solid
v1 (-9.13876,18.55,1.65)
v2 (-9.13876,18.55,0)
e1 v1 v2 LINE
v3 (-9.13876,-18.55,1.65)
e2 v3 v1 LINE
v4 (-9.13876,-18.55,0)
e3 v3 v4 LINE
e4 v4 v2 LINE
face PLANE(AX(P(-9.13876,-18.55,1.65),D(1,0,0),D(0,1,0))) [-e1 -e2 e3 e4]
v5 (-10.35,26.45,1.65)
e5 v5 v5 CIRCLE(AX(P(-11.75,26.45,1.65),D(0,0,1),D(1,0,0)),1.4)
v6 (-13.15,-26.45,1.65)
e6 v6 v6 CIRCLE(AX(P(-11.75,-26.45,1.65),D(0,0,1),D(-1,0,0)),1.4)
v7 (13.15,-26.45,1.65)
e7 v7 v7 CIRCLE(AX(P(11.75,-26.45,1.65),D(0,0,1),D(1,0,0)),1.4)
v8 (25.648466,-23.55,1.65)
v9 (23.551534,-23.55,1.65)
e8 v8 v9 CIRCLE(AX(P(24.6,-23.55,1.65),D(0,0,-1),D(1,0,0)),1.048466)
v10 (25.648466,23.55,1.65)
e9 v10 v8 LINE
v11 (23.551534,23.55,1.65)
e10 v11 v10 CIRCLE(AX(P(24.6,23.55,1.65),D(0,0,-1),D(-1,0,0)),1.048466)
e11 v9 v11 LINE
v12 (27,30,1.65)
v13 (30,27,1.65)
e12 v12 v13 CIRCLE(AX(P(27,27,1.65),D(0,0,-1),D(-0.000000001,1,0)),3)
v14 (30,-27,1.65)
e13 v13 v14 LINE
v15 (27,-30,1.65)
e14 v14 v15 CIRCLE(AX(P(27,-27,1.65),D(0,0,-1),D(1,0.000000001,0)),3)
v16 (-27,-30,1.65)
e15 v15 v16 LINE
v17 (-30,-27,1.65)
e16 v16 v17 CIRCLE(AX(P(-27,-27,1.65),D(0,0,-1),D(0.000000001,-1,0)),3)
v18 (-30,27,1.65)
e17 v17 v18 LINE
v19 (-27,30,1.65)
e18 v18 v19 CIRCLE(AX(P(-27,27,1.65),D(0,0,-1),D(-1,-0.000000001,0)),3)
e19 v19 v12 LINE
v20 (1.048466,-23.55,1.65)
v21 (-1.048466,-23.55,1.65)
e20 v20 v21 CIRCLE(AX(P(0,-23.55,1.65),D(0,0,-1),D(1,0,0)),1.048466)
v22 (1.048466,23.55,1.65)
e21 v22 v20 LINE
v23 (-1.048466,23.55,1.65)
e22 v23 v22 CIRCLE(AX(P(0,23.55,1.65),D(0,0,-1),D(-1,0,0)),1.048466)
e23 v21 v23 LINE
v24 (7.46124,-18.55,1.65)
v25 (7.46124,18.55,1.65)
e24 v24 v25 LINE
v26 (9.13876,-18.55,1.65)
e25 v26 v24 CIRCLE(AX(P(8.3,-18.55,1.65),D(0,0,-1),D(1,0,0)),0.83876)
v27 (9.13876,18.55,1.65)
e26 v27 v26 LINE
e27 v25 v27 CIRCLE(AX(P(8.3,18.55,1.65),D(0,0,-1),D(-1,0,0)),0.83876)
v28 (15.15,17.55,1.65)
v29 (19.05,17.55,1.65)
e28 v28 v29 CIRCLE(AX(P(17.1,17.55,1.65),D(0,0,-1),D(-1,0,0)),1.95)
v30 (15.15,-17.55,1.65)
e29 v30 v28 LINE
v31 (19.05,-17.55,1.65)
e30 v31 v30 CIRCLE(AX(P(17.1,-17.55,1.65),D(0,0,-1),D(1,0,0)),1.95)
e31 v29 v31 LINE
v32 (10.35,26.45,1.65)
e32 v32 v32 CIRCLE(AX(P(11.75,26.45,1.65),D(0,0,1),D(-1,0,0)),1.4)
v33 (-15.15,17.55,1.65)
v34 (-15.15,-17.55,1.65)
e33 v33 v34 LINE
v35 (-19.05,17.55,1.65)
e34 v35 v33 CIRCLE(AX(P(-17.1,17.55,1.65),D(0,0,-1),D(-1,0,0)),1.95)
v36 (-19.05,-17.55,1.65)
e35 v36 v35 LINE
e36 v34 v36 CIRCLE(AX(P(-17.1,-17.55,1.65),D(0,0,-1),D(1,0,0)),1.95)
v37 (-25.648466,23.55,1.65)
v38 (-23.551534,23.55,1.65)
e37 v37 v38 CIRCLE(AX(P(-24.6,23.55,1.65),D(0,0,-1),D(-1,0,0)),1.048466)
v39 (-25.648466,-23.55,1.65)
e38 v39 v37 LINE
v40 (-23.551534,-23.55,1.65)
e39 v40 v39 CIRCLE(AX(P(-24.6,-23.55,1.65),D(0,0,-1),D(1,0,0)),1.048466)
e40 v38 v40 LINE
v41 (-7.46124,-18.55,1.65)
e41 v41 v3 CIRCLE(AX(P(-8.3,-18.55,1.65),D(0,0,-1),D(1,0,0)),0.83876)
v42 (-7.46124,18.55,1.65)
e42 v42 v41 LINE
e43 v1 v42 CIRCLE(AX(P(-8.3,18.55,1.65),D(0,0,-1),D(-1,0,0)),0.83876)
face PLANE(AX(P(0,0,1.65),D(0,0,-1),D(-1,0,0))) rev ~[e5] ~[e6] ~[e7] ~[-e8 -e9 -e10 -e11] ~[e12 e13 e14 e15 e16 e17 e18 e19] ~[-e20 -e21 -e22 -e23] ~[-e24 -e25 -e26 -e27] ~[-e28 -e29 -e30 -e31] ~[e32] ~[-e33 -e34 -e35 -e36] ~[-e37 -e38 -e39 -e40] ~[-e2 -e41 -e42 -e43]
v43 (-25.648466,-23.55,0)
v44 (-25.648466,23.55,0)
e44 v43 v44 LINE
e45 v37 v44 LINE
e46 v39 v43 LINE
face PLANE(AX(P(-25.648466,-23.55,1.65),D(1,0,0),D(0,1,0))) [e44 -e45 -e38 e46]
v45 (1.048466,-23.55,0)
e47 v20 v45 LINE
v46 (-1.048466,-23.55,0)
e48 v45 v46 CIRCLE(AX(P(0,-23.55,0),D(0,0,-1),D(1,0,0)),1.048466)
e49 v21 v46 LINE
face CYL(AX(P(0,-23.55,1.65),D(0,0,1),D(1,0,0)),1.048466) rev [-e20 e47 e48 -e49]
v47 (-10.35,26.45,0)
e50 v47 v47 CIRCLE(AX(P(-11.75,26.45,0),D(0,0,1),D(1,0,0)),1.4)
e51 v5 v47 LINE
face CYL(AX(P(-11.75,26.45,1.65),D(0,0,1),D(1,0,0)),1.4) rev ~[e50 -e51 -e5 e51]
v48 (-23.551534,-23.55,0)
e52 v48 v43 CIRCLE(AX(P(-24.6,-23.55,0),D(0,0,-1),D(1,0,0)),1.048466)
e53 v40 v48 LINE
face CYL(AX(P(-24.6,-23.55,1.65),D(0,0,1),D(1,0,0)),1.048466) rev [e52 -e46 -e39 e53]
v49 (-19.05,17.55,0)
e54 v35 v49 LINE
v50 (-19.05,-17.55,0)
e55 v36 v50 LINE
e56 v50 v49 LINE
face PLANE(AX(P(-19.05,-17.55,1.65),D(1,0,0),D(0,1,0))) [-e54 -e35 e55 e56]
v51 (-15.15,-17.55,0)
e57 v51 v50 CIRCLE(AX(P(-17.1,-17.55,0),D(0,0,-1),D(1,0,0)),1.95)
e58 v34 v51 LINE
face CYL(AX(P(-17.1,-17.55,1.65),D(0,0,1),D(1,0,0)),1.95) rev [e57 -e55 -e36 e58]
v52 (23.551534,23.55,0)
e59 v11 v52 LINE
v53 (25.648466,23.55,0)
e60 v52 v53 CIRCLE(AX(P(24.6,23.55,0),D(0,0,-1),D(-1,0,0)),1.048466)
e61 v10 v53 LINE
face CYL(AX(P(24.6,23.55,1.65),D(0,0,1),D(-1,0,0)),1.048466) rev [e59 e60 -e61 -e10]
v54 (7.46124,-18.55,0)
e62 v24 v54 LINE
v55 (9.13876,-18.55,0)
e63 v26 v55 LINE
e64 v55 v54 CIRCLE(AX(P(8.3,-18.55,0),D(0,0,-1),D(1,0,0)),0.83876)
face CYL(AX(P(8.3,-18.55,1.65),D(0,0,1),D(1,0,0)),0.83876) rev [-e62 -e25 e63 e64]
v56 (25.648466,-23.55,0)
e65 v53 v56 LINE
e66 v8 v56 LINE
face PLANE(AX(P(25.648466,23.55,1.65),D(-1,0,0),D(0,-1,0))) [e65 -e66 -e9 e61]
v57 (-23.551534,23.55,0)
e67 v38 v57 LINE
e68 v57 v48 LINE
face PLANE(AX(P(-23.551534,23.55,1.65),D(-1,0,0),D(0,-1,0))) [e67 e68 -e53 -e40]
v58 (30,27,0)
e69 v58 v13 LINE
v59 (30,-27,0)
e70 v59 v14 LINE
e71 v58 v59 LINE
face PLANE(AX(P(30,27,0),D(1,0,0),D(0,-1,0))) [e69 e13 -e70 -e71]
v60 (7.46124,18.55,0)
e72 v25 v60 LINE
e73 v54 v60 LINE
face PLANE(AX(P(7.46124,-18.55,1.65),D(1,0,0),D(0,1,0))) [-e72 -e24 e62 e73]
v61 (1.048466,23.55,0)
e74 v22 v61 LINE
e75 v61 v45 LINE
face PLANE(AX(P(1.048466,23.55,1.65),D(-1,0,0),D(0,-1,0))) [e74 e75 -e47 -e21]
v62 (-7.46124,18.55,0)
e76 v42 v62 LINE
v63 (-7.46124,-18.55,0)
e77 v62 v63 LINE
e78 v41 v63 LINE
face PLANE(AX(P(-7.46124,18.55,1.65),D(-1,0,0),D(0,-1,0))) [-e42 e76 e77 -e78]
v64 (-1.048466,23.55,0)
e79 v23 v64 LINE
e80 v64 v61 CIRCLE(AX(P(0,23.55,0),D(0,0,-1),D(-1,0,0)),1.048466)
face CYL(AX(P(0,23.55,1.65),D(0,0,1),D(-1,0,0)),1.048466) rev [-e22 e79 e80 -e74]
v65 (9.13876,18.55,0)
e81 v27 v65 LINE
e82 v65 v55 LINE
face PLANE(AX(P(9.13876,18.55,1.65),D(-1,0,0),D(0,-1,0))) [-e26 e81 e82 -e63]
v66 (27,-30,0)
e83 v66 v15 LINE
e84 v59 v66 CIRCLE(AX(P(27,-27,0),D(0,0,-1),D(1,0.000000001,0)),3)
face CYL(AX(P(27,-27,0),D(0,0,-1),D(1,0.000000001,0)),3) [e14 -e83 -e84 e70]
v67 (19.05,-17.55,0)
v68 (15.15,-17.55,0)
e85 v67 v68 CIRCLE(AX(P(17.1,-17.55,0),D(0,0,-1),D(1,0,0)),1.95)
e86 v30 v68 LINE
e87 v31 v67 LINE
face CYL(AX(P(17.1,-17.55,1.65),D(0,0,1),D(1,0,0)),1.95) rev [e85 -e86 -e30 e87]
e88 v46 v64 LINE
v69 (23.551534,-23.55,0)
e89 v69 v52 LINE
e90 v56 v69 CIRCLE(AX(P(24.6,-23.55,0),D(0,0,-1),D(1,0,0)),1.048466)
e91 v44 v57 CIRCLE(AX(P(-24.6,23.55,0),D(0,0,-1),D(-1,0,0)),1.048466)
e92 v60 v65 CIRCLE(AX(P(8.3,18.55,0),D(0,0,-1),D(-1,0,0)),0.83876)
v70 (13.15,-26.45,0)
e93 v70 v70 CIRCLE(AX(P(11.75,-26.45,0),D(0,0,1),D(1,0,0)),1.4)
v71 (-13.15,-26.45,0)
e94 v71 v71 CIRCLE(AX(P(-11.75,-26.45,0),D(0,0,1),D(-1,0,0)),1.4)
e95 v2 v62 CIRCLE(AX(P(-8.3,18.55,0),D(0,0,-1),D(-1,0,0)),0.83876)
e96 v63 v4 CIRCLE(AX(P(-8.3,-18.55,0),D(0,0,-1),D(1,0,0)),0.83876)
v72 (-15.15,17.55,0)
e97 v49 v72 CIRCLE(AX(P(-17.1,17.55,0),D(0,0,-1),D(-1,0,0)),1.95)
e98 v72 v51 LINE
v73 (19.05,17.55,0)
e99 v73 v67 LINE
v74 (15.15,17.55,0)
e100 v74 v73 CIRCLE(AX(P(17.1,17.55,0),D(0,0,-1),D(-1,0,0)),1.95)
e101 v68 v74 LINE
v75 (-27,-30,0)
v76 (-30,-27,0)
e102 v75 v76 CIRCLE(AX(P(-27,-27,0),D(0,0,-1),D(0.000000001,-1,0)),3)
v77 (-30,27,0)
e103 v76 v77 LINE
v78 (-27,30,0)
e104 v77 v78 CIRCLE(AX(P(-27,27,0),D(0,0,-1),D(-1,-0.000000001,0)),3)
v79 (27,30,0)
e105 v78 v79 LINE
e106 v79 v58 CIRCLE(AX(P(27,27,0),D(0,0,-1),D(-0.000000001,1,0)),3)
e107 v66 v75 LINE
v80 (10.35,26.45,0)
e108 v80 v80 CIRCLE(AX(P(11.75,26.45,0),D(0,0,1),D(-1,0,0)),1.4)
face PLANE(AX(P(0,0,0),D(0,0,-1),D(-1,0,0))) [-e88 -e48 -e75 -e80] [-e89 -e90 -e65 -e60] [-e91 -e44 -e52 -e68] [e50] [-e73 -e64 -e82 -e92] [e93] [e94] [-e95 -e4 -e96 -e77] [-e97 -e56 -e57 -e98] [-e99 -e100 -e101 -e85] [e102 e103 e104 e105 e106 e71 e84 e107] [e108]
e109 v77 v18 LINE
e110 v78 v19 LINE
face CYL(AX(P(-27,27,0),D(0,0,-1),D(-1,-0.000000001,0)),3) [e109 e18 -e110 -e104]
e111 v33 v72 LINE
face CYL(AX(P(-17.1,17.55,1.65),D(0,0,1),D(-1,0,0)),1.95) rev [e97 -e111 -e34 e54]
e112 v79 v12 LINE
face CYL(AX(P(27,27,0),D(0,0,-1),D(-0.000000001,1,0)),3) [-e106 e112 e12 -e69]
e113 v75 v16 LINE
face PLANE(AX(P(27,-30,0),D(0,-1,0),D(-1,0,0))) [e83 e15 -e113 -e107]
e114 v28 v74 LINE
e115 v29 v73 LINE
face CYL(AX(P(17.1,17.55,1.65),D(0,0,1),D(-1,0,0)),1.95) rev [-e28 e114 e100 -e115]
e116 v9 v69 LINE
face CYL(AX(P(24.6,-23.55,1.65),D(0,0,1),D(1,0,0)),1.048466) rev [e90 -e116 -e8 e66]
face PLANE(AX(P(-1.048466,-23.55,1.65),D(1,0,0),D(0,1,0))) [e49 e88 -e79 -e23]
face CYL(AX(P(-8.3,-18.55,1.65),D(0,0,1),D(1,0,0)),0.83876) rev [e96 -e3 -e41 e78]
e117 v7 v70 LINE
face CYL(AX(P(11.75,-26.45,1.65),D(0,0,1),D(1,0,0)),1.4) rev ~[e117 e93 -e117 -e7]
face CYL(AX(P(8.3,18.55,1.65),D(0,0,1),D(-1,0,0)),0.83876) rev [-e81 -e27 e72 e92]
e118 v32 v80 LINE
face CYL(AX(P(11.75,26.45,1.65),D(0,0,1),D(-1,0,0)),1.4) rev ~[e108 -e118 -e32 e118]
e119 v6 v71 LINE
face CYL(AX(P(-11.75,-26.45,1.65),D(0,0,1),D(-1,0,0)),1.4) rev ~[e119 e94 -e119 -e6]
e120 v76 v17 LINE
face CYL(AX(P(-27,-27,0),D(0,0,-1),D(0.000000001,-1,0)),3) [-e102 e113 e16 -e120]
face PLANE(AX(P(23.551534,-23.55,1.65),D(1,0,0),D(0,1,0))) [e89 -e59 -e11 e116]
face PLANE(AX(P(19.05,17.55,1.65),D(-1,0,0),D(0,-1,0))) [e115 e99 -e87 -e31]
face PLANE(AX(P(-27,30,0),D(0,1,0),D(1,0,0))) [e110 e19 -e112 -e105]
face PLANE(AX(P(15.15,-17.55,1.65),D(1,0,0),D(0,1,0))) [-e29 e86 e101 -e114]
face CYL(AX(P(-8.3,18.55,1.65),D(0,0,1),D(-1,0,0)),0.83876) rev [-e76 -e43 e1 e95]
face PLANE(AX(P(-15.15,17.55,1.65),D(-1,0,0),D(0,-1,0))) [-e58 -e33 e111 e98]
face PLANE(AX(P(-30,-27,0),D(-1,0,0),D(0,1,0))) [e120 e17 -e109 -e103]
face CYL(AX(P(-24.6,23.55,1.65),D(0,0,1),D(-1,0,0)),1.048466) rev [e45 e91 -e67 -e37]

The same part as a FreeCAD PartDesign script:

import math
import FreeCAD as App
import Part
import Sketcher
Q = App.Units.Quantity

doc = App.newDocument("Part")
body = doc.addObject("PartDesign::Body", "Body")

# Sketch on XY plane
sketch1 = body.newObject("Sketcher::SketchObject", "Sketch")
sketch1.AttachmentSupport = (doc.getObject("XY_Plane"), [""])
sketch1.MapMode = "FlatFace"
sketch1.addGeometry(Part.LineSegment(App.Vector(-27, -30, 0), App.Vector(27, -30, 0)), False)
sketch1.addGeometry(Part.ArcOfCircle(Part.Circle(App.Vector(27, -27, 0), App.Vector(0, 0, 1), 3), math.radians(-90), math.radians(0)), False)
sketch1.addGeometry(Part.LineSegment(App.Vector(30, -27, 0), App.Vector(30, 27, 0)), False)
sketch1.addGeometry(Part.ArcOfCircle(Part.Circle(App.Vector(27, 27, 0), App.Vector(0, 0, 1), 3), math.radians(0), math.radians(90)), False)
sketch1.addGeometry(Part.LineSegment(App.Vector(27, 30, 0), App.Vector(-27, 30, 0)), False)
sketch1.addGeometry(Part.ArcOfCircle(Part.Circle(App.Vector(-27, 27, 0), App.Vector(0, 0, 1), 3), math.radians(90), math.radians(180)), False)
sketch1.addGeometry(Part.LineSegment(App.Vector(-30, 27, 0), App.Vector(-30, -27, 0)), False)
sketch1.addGeometry(Part.ArcOfCircle(Part.Circle(App.Vector(-27, -27, 0), App.Vector(0, 0, 1), 3), math.radians(180), math.radians(270)), False)
sketch1.addConstraint(Sketcher.Constraint("Tangent", 0, 2, 1, 1))
sketch1.addConstraint(Sketcher.Constraint("Tangent", 1, 2, 2, 1))
sketch1.addConstraint(Sketcher.Constraint("Tangent", 2, 2, 3, 1))
sketch1.addConstraint(Sketcher.Constraint("Tangent", 3, 2, 4, 1))
sketch1.addConstraint(Sketcher.Constraint("Tangent", 4, 2, 5, 1))
sketch1.addConstraint(Sketcher.Constraint("Tangent", 5, 2, 6, 1))
sketch1.addConstraint(Sketcher.Constraint("Tangent", 6, 2, 7, 1))
sketch1.addConstraint(Sketcher.Constraint("Tangent", 7, 2, 0, 1))
sketch1.addConstraint(Sketcher.Constraint("Horizontal", 0))
sketch1.addConstraint(Sketcher.Constraint("Vertical", 2))
sketch1.addConstraint(Sketcher.Constraint("Horizontal", 4))
sketch1.addConstraint(Sketcher.Constraint("Vertical", 6))
sketch1.addConstraint(Sketcher.Constraint("Equal", 1, 3))
sketch1.addConstraint(Sketcher.Constraint("Equal", 3, 5))
sketch1.addConstraint(Sketcher.Constraint("Equal", 5, 7))
sketch1.addConstraint(Sketcher.Constraint("Symmetric", 1, 3, 5, 3, -1, 1))
sketch1.addConstraint(Sketcher.Constraint("Equal", 4, 2))
sketch1.addConstraint(Sketcher.Constraint("Radius", 1, Q("3 mm")))
sketch1.addConstraint(Sketcher.Constraint("DistanceX", 0, 1, 0, 2, Q("54 mm")))
pad1 = body.newObject("PartDesign::Pad", "Pad")
pad1.Profile = sketch1
pad1.Length = 1.65

# Sketch on XY plane
sketch2 = body.newObject("Sketcher::SketchObject", "Sketch001")
sketch2.AttachmentSupport = (doc.getObject("XY_Plane"), [""])
sketch2.MapMode = "FlatFace"
sketch2.AttachmentOffset = App.Placement(App.Vector(0, 0, 1.65), App.Rotation())
sketch2.addGeometry(Part.Circle(App.Vector(-11.75, 26.45, 0), App.Vector(0, 0, 1), 1.4), False)
sketch2.addGeometry(Part.Circle(App.Vector(11.75, 26.45, 0), App.Vector(0, 0, 1), 1.4), False)
sketch2.addGeometry(Part.Circle(App.Vector(11.75, -26.45, 0), App.Vector(0, 0, 1), 1.4), False)
sketch2.addGeometry(Part.Circle(App.Vector(-11.75, -26.45, 0), App.Vector(0, 0, 1), 1.4), False)
sketch2.addGeometry(Part.LineSegment(App.Vector(23.551534, 23.55, 0), App.Vector(23.551534, -23.55, 0)), False)
sketch2.addGeometry(Part.ArcOfCircle(Part.Circle(App.Vector(24.6, -23.55, 0), App.Vector(0, 0, 1), 1.048466), math.radians(180), math.radians(360)), False)
sketch2.addGeometry(Part.LineSegment(App.Vector(25.648466, -23.55, 0), App.Vector(25.648466, 23.55, 0)), False)
sketch2.addGeometry(Part.ArcOfCircle(Part.Circle(App.Vector(24.6, 23.55, 0), App.Vector(0, 0, 1), 1.048466), math.radians(0), math.radians(180)), False)
sketch2.addGeometry(Part.LineSegment(App.Vector(-1.048466, 23.55, 0), App.Vector(-1.048466, -23.55, 0)), False)
sketch2.addGeometry(Part.ArcOfCircle(Part.Circle(App.Vector(0, -23.55, 0), App.Vector(0, 0, 1), 1.048466), math.radians(180), math.radians(360)), False)
sketch2.addGeometry(Part.LineSegment(App.Vector(1.048466, -23.55, 0), App.Vector(1.048466, 23.55, 0)), False)
sketch2.addGeometry(Part.ArcOfCircle(Part.Circle(App.Vector(0, 23.55, 0), App.Vector(0, 0, 1), 1.048466), math.radians(0), math.radians(180)), False)
sketch2.addGeometry(Part.LineSegment(App.Vector(-25.648466, 23.55, 0), App.Vector(-25.648466, -23.55, 0)), False)
sketch2.addGeometry(Part.ArcOfCircle(Part.Circle(App.Vector(-24.6, -23.55, 0), App.Vector(0, 0, 1), 1.048466), math.radians(180), math.radians(360)), False)
sketch2.addGeometry(Part.LineSegment(App.Vector(-23.551534, -23.55, 0), App.Vector(-23.551534, 23.55, 0)), False)
sketch2.addGeometry(Part.ArcOfCircle(Part.Circle(App.Vector(-24.6, 23.55, 0), App.Vector(0, 0, 1), 1.048466), math.radians(0), math.radians(180)), False)
sketch2.addGeometry(Part.LineSegment(App.Vector(-9.13876, 18.55, 0), App.Vector(-9.13876, -18.55, 0)), False)
sketch2.addGeometry(Part.ArcOfCircle(Part.Circle(App.Vector(-8.3, -18.55, 0), App.Vector(0, 0, 1), 0.83876), math.radians(180), math.radians(360)), False)
sketch2.addGeometry(Part.LineSegment(App.Vector(-7.46124, -18.55, 0), App.Vector(-7.46124, 18.55, 0)), False)
sketch2.addGeometry(Part.ArcOfCircle(Part.Circle(App.Vector(-8.3, 18.55, 0), App.Vector(0, 0, 1), 0.83876), math.radians(0), math.radians(180)), False)
sketch2.addGeometry(Part.LineSegment(App.Vector(15.15, 17.55, 0), App.Vector(15.15, -17.55, 0)), False)
sketch2.addGeometry(Part.ArcOfCircle(Part.Circle(App.Vector(17.1, -17.55, 0), App.Vector(0, 0, 1), 1.95), math.radians(180), math.radians(360)), False)
sketch2.addGeometry(Part.LineSegment(App.Vector(19.05, -17.55, 0), App.Vector(19.05, 17.55, 0)), False)
sketch2.addGeometry(Part.ArcOfCircle(Part.Circle(App.Vector(17.1, 17.55, 0), App.Vector(0, 0, 1), 1.95), math.radians(0), math.radians(180)), False)
sketch2.addGeometry(Part.LineSegment(App.Vector(-19.05, 17.55, 0), App.Vector(-19.05, -17.55, 0)), False)
sketch2.addGeometry(Part.ArcOfCircle(Part.Circle(App.Vector(-17.1, -17.55, 0), App.Vector(0, 0, 1), 1.95), math.radians(180), math.radians(360)), False)
sketch2.addGeometry(Part.LineSegment(App.Vector(-15.15, -17.55, 0), App.Vector(-15.15, 17.55, 0)), False)
sketch2.addGeometry(Part.ArcOfCircle(Part.Circle(App.Vector(-17.1, 17.55, 0), App.Vector(0, 0, 1), 1.95), math.radians(0), math.radians(180)), False)
sketch2.addGeometry(Part.LineSegment(App.Vector(7.46124, 18.55, 0), App.Vector(7.46124, -18.55, 0)), False)
sketch2.addGeometry(Part.ArcOfCircle(Part.Circle(App.Vector(8.3, -18.55, 0), App.Vector(0, 0, 1), 0.83876), math.radians(180), math.radians(360)), False)
sketch2.addGeometry(Part.LineSegment(App.Vector(9.13876, -18.55, 0), App.Vector(9.13876, 18.55, 0)), False)
sketch2.addGeometry(Part.ArcOfCircle(Part.Circle(App.Vector(8.3, 18.55, 0), App.Vector(0, 0, 1), 0.83876), math.radians(0), math.radians(180)), False)
sketch2.addConstraint(Sketcher.Constraint("Tangent", 4, 2, 5, 1))
sketch2.addConstraint(Sketcher.Constraint("Tangent", 5, 2, 6, 1))
sketch2.addConstraint(Sketcher.Constraint("Tangent", 6, 2, 7, 1))
sketch2.addConstraint(Sketcher.Constraint("Tangent", 7, 2, 4, 1))
sketch2.addConstraint(Sketcher.Constraint("Tangent", 8, 2, 9, 1))
sketch2.addConstraint(Sketcher.Constraint("Tangent", 9, 2, 10, 1))
sketch2.addConstraint(Sketcher.Constraint("Tangent", 10, 2, 11, 1))
sketch2.addConstraint(Sketcher.Constraint("Tangent", 11, 2, 8, 1))
sketch2.addConstraint(Sketcher.Constraint("Tangent", 12, 2, 13, 1))
sketch2.addConstraint(Sketcher.Constraint("Tangent", 13, 2, 14, 1))
sketch2.addConstraint(Sketcher.Constraint("Tangent", 14, 2, 15, 1))
sketch2.addConstraint(Sketcher.Constraint("Tangent", 15, 2, 12, 1))
sketch2.addConstraint(Sketcher.Constraint("Tangent", 16, 2, 17, 1))
sketch2.addConstraint(Sketcher.Constraint("Tangent", 17, 2, 18, 1))
sketch2.addConstraint(Sketcher.Constraint("Tangent", 18, 2, 19, 1))
sketch2.addConstraint(Sketcher.Constraint("Tangent", 19, 2, 16, 1))
sketch2.addConstraint(Sketcher.Constraint("Tangent", 20, 2, 21, 1))
sketch2.addConstraint(Sketcher.Constraint("Tangent", 21, 2, 22, 1))
sketch2.addConstraint(Sketcher.Constraint("Tangent", 22, 2, 23, 1))
sketch2.addConstraint(Sketcher.Constraint("Tangent", 23, 2, 20, 1))
sketch2.addConstraint(Sketcher.Constraint("Tangent", 24, 2, 25, 1))
sketch2.addConstraint(Sketcher.Constraint("Tangent", 25, 2, 26, 1))
sketch2.addConstraint(Sketcher.Constraint("Tangent", 26, 2, 27, 1))
sketch2.addConstraint(Sketcher.Constraint("Tangent", 27, 2, 24, 1))
sketch2.addConstraint(Sketcher.Constraint("Tangent", 28, 2, 29, 1))
sketch2.addConstraint(Sketcher.Constraint("Tangent", 29, 2, 30, 1))
sketch2.addConstraint(Sketcher.Constraint("Tangent", 30, 2, 31, 1))
sketch2.addConstraint(Sketcher.Constraint("Tangent", 31, 2, 28, 1))
sketch2.addConstraint(Sketcher.Constraint("Vertical", 4))
sketch2.addConstraint(Sketcher.Constraint("Vertical", 6))
sketch2.addConstraint(Sketcher.Constraint("Vertical", 8))
sketch2.addConstraint(Sketcher.Constraint("Vertical", 10))
sketch2.addConstraint(Sketcher.Constraint("Vertical", 12))
sketch2.addConstraint(Sketcher.Constraint("Vertical", 14))
sketch2.addConstraint(Sketcher.Constraint("Vertical", 16))
sketch2.addConstraint(Sketcher.Constraint("Vertical", 18))
sketch2.addConstraint(Sketcher.Constraint("Vertical", 20))
sketch2.addConstraint(Sketcher.Constraint("Vertical", 22))
sketch2.addConstraint(Sketcher.Constraint("Vertical", 24))
sketch2.addConstraint(Sketcher.Constraint("Vertical", 26))
sketch2.addConstraint(Sketcher.Constraint("Vertical", 28))
sketch2.addConstraint(Sketcher.Constraint("Vertical", 30))
sketch2.addConstraint(Sketcher.Constraint("Equal", 0, 1))
sketch2.addConstraint(Sketcher.Constraint("Equal", 1, 2))
sketch2.addConstraint(Sketcher.Constraint("Equal", 2, 3))
sketch2.addConstraint(Sketcher.Constraint("Equal", 7, 9))
sketch2.addConstraint(Sketcher.Constraint("Equal", 11, 13))
sketch2.addConstraint(Sketcher.Constraint("Equal", 23, 25))
sketch2.addConstraint(Sketcher.Constraint("Equal", 19, 29))
sketch2.addConstraint(Sketcher.Constraint("Symmetric", 0, 3, 2, 3, -1, 1))
sketch2.addConstraint(Sketcher.Constraint("Symmetric", 1, 3, 3, 3, -1, 1))
sketch2.addConstraint(Sketcher.Constraint("Symmetric", 9, 3, 11, 3, -1, 1))
sketch2.addConstraint(Sketcher.Constraint("Symmetric", 7, 3, 13, 3, -1, 1))
sketch2.addConstraint(Sketcher.Constraint("Symmetric", 23, 3, 25, 3, -1, 1))
sketch2.addConstraint(Sketcher.Constraint("Symmetric", 19, 3, 29, 3, -1, 1))
sketch2.addConstraint(Sketcher.Constraint("Symmetric", 0, 3, 1, 3, -2))
sketch2.addConstraint(Sketcher.Constraint("Horizontal", 5, 3, 9, 3))
sketch2.addConstraint(Sketcher.Constraint("Horizontal", 7, 3, 11, 3))
sketch2.addConstraint(Sketcher.Constraint("Horizontal", 11, 3, 15, 3))
sketch2.addConstraint(Sketcher.Constraint("Horizontal", 21, 3, 25, 3))
sketch2.addConstraint(Sketcher.Constraint("Horizontal", 23, 3, 27, 3))
sketch2.addConstraint(Sketcher.Constraint("Horizontal", 17, 3, 29, 3))
sketch2.addConstraint(Sketcher.Constraint("Horizontal", 19, 3, 31, 3))
sketch2.addConstraint(Sketcher.Constraint("Diameter", 0, Q("2.8 mm")))
sketch2.addConstraint(Sketcher.Constraint("Radius", 21, Q("1.95 mm")))
sketch2.addConstraint(Sketcher.Constraint("DistanceY", 4, 2, 4, 1, Q("47.1 mm")))
sketch2.addConstraint(Sketcher.Constraint("DistanceY", 16, 2, 16, 1, Q("37.1 mm")))
sketch2.addConstraint(Sketcher.Constraint("DistanceY", 20, 2, 20, 1, Q("35.1 mm")))
sketch2.addConstraint(Sketcher.Constraint("DistanceY", 5, 3, 1, 3, Q("50 mm")))
sketch2.addConstraint(Sketcher.Constraint("DistanceX", -1, 1, 5, 3, Q("24.6 mm")))
sketch2.addConstraint(Sketcher.Constraint("DistanceX", 17, 3, -1, 1, Q("8.3 mm")))
sketch2.addConstraint(Sketcher.Constraint("DistanceX", -1, 1, 21, 3, Q("17.1 mm")))
sketch2.addConstraint(Sketcher.Constraint("DistanceX", 0, 3, 1, 3, Q("23.5 mm")))
sketch2.addConstraint(Sketcher.Constraint("Radius", 17, Q("0.83876 mm")))
sketch2.addConstraint(Sketcher.Constraint("Radius", 5, Q("1.048466 mm")))
pocket1 = body.newObject("PartDesign::Pocket", "Pocket")
pocket1.Profile = sketch2
pocket1.Length = 1.65

doc.recompute()
